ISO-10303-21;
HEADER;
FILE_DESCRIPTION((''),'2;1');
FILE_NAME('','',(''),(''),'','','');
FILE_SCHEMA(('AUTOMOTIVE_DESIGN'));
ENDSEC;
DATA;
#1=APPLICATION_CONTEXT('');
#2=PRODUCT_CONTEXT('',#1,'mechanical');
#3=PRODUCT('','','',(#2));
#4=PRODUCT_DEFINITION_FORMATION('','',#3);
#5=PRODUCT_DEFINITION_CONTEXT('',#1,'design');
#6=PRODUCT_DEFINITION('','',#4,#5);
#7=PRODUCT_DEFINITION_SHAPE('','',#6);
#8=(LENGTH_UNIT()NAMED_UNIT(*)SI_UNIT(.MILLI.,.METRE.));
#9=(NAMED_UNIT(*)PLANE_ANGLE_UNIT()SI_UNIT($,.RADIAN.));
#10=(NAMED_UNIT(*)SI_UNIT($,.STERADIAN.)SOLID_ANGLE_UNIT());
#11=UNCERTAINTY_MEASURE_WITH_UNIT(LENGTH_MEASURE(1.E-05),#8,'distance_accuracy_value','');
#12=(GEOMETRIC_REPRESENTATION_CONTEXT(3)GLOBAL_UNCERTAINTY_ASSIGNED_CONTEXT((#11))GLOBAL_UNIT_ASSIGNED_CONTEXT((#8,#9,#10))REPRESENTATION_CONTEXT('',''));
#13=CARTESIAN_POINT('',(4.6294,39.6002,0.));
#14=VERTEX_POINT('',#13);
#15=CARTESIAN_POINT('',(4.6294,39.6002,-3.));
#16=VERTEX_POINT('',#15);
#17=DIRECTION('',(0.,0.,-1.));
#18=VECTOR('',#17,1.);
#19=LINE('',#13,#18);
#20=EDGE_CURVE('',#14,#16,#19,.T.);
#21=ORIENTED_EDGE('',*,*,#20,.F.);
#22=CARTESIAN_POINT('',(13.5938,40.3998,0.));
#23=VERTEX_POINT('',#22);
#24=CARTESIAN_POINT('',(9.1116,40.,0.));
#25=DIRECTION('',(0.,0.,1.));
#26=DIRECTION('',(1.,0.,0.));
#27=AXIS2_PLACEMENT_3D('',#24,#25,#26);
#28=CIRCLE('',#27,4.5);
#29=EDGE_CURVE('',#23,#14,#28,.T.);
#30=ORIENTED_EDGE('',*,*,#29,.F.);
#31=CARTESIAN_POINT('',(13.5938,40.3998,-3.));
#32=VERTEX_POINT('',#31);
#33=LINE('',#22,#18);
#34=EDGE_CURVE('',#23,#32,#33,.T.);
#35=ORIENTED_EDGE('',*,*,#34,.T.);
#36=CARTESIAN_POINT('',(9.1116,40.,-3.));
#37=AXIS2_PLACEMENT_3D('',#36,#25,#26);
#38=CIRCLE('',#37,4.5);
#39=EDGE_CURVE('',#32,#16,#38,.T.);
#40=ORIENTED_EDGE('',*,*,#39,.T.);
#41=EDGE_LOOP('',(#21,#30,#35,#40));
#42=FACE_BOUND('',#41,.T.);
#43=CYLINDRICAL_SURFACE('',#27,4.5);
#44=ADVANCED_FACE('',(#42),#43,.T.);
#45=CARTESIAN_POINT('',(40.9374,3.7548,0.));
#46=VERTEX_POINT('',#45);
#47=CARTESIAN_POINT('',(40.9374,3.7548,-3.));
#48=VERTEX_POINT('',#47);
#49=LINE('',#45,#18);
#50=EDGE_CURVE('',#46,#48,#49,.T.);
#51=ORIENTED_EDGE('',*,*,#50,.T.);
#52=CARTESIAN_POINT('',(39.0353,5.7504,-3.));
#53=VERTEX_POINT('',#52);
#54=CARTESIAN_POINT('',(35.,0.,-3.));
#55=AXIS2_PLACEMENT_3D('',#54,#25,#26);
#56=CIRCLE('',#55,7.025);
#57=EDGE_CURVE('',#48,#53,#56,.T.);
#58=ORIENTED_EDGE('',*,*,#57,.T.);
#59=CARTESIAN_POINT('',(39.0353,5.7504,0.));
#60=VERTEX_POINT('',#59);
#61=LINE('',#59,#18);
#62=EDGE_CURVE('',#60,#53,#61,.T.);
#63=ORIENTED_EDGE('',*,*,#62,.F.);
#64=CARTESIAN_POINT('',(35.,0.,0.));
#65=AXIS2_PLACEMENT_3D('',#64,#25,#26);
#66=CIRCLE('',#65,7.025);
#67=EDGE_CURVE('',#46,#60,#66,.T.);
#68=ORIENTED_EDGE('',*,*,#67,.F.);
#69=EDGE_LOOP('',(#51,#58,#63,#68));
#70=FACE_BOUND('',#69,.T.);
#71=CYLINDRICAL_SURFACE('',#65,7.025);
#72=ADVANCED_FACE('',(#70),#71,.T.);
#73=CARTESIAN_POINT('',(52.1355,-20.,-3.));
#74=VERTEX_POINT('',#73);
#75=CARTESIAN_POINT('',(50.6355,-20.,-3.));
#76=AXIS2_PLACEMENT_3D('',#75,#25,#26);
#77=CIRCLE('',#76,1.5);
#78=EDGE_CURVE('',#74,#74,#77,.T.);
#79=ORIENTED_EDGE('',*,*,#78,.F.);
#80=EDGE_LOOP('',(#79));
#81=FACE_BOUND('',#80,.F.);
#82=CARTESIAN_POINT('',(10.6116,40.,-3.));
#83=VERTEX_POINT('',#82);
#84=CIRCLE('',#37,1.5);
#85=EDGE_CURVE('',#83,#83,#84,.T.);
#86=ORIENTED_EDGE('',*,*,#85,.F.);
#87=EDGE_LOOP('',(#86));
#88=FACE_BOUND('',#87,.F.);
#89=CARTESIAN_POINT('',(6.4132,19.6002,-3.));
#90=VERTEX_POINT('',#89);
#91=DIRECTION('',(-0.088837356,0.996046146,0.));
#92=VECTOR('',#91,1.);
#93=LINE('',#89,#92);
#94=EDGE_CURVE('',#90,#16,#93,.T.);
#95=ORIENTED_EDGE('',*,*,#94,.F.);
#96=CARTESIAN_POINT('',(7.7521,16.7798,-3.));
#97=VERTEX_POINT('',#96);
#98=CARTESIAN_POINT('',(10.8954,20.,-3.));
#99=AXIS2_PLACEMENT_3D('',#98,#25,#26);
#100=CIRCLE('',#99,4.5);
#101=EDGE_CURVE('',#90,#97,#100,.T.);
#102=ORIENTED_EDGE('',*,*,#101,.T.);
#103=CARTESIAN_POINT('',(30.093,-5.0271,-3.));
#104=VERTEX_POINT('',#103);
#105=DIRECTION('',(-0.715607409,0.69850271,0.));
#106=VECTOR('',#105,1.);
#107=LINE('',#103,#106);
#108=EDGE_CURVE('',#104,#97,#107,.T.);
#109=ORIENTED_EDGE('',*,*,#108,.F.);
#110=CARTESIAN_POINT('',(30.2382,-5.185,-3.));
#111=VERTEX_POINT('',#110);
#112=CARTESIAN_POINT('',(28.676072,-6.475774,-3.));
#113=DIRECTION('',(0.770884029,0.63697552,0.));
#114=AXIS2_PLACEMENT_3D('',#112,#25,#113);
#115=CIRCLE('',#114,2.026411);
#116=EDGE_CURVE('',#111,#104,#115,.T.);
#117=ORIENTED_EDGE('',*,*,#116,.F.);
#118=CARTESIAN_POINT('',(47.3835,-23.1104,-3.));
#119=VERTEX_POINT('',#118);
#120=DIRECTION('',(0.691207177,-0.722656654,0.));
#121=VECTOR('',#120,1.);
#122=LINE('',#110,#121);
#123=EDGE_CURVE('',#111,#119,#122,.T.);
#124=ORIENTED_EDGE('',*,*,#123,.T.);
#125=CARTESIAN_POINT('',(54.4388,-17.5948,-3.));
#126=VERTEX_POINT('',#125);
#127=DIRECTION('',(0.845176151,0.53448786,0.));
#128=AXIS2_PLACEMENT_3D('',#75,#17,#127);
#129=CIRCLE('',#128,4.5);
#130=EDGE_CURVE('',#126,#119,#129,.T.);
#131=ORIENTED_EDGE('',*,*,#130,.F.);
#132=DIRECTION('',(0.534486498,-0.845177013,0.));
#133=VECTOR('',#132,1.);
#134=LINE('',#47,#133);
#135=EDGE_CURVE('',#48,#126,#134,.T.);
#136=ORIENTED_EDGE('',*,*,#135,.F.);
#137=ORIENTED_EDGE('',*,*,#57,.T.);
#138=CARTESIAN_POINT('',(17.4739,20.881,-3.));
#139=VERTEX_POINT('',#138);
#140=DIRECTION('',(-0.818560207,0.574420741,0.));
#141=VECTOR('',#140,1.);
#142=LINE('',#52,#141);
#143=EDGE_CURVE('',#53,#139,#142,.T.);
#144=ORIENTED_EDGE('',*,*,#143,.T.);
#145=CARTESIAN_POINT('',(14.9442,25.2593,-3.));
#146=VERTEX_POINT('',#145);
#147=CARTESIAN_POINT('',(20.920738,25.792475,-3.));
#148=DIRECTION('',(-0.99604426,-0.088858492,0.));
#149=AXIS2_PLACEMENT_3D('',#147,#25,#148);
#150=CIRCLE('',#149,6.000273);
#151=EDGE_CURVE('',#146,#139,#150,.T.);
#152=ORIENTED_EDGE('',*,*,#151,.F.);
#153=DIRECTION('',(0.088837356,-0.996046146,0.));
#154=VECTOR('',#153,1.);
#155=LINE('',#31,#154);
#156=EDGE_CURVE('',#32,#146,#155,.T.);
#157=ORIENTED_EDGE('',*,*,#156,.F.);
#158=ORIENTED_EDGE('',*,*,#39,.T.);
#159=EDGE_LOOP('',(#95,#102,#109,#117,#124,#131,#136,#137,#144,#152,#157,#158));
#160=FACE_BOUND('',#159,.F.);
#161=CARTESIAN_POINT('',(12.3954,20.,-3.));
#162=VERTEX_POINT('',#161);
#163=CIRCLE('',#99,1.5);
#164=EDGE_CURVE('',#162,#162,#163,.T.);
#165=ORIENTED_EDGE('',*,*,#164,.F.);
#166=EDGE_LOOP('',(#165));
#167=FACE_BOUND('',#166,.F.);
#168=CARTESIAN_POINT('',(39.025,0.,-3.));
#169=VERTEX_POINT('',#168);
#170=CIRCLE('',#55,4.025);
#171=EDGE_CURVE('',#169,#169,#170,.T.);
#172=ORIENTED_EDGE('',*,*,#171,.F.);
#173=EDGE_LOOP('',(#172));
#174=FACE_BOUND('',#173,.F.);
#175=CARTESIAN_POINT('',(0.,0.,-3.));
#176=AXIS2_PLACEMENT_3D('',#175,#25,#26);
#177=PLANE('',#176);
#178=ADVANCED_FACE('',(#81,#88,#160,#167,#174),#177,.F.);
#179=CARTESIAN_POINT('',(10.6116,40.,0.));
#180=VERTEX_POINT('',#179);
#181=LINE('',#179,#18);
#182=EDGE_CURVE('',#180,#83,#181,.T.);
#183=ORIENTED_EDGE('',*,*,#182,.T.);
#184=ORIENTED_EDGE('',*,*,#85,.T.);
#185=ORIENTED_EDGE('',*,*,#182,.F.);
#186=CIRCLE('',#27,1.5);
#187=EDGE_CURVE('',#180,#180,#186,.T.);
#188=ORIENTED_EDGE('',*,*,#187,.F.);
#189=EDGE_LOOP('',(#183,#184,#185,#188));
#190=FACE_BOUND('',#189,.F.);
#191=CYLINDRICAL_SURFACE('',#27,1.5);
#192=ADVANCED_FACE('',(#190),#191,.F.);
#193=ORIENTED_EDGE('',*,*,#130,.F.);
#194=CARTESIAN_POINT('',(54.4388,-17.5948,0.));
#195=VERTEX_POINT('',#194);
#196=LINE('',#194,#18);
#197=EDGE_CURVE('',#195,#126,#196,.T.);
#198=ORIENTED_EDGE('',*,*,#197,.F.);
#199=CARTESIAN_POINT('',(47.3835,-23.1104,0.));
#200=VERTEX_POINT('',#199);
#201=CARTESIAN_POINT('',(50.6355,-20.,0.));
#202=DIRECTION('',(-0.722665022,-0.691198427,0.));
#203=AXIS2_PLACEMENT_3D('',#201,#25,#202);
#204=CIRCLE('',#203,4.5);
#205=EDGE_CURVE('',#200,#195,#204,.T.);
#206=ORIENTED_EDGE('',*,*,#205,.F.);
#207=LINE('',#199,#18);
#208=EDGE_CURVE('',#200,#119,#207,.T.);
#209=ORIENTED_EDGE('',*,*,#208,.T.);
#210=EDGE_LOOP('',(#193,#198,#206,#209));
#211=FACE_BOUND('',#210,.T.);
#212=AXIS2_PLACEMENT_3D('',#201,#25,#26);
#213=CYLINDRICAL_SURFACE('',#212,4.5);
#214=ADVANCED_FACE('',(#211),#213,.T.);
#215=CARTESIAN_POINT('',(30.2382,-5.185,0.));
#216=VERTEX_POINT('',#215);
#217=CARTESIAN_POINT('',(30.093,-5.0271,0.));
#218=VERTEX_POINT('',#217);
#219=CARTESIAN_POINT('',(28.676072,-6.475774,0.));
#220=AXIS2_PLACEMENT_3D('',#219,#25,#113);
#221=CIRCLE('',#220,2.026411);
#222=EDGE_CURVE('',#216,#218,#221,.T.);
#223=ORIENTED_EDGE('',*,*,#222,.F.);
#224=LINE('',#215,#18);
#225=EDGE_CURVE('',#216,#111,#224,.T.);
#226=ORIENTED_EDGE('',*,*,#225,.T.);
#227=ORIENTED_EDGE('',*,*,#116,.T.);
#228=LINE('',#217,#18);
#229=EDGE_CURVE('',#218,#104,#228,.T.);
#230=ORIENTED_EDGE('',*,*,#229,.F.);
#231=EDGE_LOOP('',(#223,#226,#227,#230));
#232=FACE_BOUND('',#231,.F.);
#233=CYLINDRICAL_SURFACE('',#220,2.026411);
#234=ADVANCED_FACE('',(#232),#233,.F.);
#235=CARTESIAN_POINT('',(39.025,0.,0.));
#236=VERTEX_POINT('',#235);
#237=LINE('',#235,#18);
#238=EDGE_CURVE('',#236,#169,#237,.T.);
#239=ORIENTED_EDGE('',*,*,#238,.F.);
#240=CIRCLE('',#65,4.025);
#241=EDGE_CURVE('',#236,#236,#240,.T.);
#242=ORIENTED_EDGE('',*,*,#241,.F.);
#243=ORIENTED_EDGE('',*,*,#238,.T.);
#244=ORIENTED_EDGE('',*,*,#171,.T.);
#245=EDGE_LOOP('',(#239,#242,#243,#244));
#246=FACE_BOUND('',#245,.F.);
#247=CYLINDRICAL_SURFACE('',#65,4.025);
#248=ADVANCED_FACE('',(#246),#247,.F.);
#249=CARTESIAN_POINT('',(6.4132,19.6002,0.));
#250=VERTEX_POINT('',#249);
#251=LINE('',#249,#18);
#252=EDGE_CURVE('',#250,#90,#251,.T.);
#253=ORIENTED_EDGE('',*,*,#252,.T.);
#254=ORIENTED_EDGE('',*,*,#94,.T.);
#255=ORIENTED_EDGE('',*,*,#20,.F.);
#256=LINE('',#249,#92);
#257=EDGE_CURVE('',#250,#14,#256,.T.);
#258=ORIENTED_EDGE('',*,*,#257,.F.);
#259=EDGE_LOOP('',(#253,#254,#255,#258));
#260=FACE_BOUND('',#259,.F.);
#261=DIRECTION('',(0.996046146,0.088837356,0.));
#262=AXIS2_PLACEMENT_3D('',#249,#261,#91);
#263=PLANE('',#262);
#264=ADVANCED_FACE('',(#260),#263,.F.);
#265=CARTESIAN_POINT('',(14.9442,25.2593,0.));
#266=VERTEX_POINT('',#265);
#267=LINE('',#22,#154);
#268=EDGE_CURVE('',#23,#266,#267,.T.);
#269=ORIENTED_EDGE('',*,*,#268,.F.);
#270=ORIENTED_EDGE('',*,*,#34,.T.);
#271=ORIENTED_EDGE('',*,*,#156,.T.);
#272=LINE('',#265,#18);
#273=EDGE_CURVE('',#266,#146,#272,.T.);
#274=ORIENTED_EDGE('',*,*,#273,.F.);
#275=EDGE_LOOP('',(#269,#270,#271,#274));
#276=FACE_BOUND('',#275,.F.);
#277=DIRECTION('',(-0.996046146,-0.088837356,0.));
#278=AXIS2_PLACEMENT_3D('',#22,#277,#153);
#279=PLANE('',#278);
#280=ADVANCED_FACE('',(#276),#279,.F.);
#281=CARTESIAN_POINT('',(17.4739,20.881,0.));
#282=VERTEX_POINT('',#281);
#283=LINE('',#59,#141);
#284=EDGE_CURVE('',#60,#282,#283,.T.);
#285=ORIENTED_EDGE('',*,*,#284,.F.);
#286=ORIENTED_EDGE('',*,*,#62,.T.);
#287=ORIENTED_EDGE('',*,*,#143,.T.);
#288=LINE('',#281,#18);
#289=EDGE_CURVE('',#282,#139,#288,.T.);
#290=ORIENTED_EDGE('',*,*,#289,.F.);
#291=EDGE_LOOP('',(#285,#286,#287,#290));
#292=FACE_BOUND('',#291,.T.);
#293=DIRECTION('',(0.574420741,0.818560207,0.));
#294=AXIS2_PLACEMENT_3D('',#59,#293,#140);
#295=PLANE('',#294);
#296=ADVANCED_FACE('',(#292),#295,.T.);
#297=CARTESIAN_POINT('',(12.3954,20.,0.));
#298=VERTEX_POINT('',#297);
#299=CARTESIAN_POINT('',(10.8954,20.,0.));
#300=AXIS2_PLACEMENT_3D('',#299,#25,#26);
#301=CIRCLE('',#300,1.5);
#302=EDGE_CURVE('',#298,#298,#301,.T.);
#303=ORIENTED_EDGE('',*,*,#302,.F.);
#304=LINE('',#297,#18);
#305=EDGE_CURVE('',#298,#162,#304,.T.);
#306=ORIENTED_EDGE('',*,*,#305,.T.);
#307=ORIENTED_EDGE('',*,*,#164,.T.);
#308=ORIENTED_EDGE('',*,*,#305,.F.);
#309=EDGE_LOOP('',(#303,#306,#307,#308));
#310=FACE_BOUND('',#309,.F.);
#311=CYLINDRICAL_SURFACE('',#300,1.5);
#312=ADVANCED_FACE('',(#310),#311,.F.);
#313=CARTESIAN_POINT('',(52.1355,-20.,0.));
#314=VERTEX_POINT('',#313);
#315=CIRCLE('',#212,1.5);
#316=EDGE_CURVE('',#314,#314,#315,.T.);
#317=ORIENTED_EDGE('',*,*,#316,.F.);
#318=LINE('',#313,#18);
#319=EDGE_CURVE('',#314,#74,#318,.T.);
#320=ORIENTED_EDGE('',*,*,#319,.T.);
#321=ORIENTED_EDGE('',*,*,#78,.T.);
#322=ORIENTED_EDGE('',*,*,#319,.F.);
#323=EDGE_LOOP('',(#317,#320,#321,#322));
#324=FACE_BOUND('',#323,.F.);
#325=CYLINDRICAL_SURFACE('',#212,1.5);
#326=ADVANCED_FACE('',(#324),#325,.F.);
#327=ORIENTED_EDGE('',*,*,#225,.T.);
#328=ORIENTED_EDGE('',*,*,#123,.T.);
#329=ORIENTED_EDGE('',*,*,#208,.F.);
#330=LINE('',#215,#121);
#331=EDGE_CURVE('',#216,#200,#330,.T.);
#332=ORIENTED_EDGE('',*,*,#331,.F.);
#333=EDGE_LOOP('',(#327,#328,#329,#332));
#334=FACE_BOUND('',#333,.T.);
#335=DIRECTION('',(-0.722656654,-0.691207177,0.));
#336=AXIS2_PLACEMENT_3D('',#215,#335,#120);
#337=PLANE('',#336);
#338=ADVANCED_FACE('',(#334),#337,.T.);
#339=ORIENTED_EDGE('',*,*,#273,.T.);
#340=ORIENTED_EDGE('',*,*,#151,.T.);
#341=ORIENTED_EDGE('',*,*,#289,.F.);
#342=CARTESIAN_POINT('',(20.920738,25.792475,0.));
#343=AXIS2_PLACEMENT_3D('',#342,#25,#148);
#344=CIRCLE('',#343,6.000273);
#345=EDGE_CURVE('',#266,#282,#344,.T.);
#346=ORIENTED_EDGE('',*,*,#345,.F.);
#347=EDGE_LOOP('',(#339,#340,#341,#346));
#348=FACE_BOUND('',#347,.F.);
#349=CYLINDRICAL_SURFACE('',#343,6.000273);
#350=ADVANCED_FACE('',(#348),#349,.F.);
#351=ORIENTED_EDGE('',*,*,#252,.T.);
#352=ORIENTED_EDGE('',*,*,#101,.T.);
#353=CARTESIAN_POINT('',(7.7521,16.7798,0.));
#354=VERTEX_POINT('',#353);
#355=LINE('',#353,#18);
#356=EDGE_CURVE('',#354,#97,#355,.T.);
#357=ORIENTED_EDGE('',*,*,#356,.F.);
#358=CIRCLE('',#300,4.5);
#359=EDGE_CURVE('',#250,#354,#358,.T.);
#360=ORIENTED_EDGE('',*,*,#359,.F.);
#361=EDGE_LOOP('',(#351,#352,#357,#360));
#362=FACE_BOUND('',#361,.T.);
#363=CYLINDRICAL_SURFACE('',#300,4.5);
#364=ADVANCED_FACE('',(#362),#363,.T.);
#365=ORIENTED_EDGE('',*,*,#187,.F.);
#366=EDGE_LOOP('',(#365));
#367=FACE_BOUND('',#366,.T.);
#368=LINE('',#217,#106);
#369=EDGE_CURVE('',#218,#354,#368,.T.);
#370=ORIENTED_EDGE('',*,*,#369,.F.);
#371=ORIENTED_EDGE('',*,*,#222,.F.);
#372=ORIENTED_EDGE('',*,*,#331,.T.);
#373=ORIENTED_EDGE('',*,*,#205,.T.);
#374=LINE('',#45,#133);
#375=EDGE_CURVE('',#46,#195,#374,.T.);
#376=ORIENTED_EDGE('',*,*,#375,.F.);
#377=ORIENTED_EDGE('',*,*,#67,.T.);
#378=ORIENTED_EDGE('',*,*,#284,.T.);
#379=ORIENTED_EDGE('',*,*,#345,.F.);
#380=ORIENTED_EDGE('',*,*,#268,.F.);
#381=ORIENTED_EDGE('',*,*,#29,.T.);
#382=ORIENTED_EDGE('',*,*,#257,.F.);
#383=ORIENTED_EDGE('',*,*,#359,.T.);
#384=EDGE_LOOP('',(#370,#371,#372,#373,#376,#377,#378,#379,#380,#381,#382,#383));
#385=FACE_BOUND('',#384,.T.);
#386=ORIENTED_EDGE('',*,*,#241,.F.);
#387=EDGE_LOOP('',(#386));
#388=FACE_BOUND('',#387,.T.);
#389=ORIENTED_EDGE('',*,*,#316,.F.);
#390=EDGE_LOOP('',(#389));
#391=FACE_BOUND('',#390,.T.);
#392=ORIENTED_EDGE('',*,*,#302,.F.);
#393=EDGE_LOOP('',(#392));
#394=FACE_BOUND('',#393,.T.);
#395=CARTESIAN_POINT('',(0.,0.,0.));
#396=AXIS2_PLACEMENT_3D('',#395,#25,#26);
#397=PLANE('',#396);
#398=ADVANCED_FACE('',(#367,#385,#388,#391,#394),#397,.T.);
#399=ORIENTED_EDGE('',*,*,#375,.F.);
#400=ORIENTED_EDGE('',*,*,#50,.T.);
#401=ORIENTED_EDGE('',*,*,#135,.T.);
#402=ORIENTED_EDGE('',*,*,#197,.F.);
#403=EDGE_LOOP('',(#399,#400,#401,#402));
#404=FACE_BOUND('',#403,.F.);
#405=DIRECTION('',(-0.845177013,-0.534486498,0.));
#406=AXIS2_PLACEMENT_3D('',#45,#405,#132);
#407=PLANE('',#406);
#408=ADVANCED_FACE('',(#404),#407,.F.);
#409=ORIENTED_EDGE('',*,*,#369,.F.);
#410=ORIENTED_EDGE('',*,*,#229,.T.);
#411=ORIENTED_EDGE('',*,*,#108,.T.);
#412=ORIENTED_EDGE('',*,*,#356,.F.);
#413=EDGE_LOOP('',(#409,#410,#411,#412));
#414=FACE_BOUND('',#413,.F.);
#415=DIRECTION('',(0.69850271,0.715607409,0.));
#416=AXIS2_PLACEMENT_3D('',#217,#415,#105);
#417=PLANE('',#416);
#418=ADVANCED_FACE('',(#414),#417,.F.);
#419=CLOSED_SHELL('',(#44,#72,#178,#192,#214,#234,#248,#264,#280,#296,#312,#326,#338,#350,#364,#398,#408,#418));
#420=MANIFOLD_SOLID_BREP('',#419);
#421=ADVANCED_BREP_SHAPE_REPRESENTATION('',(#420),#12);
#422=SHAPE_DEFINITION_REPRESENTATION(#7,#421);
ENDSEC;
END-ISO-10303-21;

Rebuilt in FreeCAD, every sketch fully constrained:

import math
import FreeCAD as App
import Part
import Sketcher

V = App.Vector
Q = App.Units.Quantity

doc = App.newDocument("Part")
params = doc.addObject("Spreadsheet::Sheet", "Params")
for row, (alias, value) in enumerate([
    ("sketch1_diameter", "3 mm"),
    ("sketch1_radius", "6 mm"),
    ("sketch1_radius2", "4.5 mm"),
    ("sketch1_diameter2", "8.05 mm"),
    ("pad1_length", "3 mm"),
], start=1):
    params.set(f"A{row}", alias)
    params.set(f"B{row}", "=" + value)
    params.setAlias(f"B{row}", alias)

body = doc.addObject("PartDesign::Body", "Body")

# Sketch on XY plane
sketch1 = body.newObject("Sketcher::SketchObject", "Sketch")
sketch1.AttachmentSupport = (doc.getObject("XY_Plane"), [""])
sketch1.MapMode = "FlatFace"
sketch1.addGeometry([
    Part.ArcOfCircle(Part.Circle(V(9.11, 40, 0), V(0, 0, 1), 4.5), math.radians(5), math.radians(185)),  # 0
    Part.LineSegment(V(4.63, 39.6, 0), V(6.41, 19.6, 0)),  # 1
    Part.ArcOfCircle(Part.Circle(V(10.9, 20, 0), V(0, 0, 1), 4.5), math.radians(-175), math.radians(-134)),  # 2
    Part.LineSegment(V(7.75, 16.78, 0), V(30.09, -5.03, 0)),  # 3
    Part.ArcOfCircle(Part.Circle(V(28.68, -6.48, 0), V(0, 0, 1), 2.03), math.radians(39.57), math.radians(45.63)),  # 4
    Part.LineSegment(V(30.24, -5.18, 0), V(47.38, -23.11, 0)),  # 5
    Part.ArcOfCircle(Part.Circle(V(50.64, -20, 0), V(0, 0, 1), 4.5), math.radians(-136), math.radians(32)),  # 6
    Part.LineSegment(V(54.44, -17.59, 0), V(40.94, 3.75, 0)),  # 7
    Part.ArcOfCircle(Part.Circle(V(35, 0, 0), V(0, 0, 1), 7.03), math.radians(32), math.radians(55)),  # 8
    Part.LineSegment(V(39.04, 5.75, 0), V(17.47, 20.88, 0)),  # 9
    Part.ArcOfCircle(Part.Circle(V(20.92, 25.79, 0), V(0, 0, 1), 6), math.radians(-175), math.radians(-125)),  # 10
    Part.LineSegment(V(14.94, 25.26, 0), V(13.59, 40.4, 0)),  # 11
    Part.Circle(V(9.11, 40, 0), V(0, 0, 1), 1.5),  # 12
    Part.Circle(V(10.9, 20, 0), V(0, 0, 1), 1.5),  # 13
    Part.Circle(V(35, 0, 0), V(0, 0, 1), 4.03),  # 14
    Part.Circle(V(50.64, -20, 0), V(0, 0, 1), 1.5),  # 15
], False)
sketch1.addConstraint([
    Sketcher.Constraint("Tangent", 0, 2, 1, 1),
    Sketcher.Constraint("Tangent", 1, 2, 2, 1),
    Sketcher.Constraint("Tangent", 2, 2, 3, 1),
    Sketcher.Constraint("Coincident", 3, 2, 4, 2),
    Sketcher.Constraint("Coincident", 4, 1, 5, 1),
    Sketcher.Constraint("Tangent", 5, 2, 6, 1),
    Sketcher.Constraint("Tangent", 6, 2, 7, 1),
    Sketcher.Constraint("Tangent", 7, 2, 8, 1),
    Sketcher.Constraint("Tangent", 8, 2, 9, 1),
    Sketcher.Constraint("Tangent", 9, 2, 10, 2),
    Sketcher.Constraint("Tangent", 10, 1, 11, 1),
    Sketcher.Constraint("Tangent", 11, 2, 0, 1),
    Sketcher.Constraint("Coincident", 12, 3, 0, 3),
    Sketcher.Constraint("Coincident", 13, 3, 2, 3),
    Sketcher.Constraint("Coincident", 14, 3, 8, 3),
    Sketcher.Constraint("Coincident", 15, 3, 6, 3),
    Sketcher.Constraint("Equal", 0, 2),
    Sketcher.Constraint("Equal", 2, 6),
    Sketcher.Constraint("Equal", 12, 13),
    Sketcher.Constraint("Equal", 13, 15),
    Sketcher.Constraint("PointOnObject", 8, 3, -1),
    Sketcher.Constraint("Parallel", 1, 11),
    Sketcher.Constraint("Diameter", 12, 3.0),
    Sketcher.Constraint("Radius", 10, 6.0),
    Sketcher.Constraint("Radius", 0, 4.5),
    Sketcher.Constraint("Diameter", 14, 8.05),
    Sketcher.Constraint("DistanceY", -1, 1, 0, 3, 40.0),
    Sketcher.Constraint("DistanceY", -1, 1, 2, 3, 20.0),
    Sketcher.Constraint("DistanceY", 6, 3, -1, 1, 20.0),
    Sketcher.Constraint("Radius", 8, 7.025),
    Sketcher.Constraint("DistanceX", -1, 1, 8, 3, 35.0),
    Sketcher.Constraint("Angle", 7, Q("122.309 deg")),
    Sketcher.Constraint("Angle", 9, Q("144.941 deg")),
    Sketcher.Constraint("Radius", 4, 2.0264),
    Sketcher.Constraint("DistanceX", 2, 3, 6, 3, 39.74),
    Sketcher.Constraint("DistanceX", -1, 1, 4, 3, 28.676),
    Sketcher.Constraint("DistanceX", -1, 1, 2, 2, 7.752),
    Sketcher.Constraint("DistanceX", -1, 1, 3, 2, 30.093),
    Sketcher.Constraint("DistanceY", 4, 1, -1, 1, 5.185),
    Sketcher.Constraint("DistanceX", -1, 1, 9, 2, 17.474),
])
sketch1.setExpression("Constraints[22]", "Params.sketch1_diameter")
sketch1.setExpression("Constraints[23]", "Params.sketch1_radius")
sketch1.setExpression("Constraints[24]", "Params.sketch1_radius2")
sketch1.setExpression("Constraints[25]", "Params.sketch1_diameter2")
pad1 = body.newObject("PartDesign::Pad", "Pad")
pad1.Profile = sketch1
pad1.setExpression("Length", "Params.pad1_length")
pad1.Reversed = True

doc.recompute()
